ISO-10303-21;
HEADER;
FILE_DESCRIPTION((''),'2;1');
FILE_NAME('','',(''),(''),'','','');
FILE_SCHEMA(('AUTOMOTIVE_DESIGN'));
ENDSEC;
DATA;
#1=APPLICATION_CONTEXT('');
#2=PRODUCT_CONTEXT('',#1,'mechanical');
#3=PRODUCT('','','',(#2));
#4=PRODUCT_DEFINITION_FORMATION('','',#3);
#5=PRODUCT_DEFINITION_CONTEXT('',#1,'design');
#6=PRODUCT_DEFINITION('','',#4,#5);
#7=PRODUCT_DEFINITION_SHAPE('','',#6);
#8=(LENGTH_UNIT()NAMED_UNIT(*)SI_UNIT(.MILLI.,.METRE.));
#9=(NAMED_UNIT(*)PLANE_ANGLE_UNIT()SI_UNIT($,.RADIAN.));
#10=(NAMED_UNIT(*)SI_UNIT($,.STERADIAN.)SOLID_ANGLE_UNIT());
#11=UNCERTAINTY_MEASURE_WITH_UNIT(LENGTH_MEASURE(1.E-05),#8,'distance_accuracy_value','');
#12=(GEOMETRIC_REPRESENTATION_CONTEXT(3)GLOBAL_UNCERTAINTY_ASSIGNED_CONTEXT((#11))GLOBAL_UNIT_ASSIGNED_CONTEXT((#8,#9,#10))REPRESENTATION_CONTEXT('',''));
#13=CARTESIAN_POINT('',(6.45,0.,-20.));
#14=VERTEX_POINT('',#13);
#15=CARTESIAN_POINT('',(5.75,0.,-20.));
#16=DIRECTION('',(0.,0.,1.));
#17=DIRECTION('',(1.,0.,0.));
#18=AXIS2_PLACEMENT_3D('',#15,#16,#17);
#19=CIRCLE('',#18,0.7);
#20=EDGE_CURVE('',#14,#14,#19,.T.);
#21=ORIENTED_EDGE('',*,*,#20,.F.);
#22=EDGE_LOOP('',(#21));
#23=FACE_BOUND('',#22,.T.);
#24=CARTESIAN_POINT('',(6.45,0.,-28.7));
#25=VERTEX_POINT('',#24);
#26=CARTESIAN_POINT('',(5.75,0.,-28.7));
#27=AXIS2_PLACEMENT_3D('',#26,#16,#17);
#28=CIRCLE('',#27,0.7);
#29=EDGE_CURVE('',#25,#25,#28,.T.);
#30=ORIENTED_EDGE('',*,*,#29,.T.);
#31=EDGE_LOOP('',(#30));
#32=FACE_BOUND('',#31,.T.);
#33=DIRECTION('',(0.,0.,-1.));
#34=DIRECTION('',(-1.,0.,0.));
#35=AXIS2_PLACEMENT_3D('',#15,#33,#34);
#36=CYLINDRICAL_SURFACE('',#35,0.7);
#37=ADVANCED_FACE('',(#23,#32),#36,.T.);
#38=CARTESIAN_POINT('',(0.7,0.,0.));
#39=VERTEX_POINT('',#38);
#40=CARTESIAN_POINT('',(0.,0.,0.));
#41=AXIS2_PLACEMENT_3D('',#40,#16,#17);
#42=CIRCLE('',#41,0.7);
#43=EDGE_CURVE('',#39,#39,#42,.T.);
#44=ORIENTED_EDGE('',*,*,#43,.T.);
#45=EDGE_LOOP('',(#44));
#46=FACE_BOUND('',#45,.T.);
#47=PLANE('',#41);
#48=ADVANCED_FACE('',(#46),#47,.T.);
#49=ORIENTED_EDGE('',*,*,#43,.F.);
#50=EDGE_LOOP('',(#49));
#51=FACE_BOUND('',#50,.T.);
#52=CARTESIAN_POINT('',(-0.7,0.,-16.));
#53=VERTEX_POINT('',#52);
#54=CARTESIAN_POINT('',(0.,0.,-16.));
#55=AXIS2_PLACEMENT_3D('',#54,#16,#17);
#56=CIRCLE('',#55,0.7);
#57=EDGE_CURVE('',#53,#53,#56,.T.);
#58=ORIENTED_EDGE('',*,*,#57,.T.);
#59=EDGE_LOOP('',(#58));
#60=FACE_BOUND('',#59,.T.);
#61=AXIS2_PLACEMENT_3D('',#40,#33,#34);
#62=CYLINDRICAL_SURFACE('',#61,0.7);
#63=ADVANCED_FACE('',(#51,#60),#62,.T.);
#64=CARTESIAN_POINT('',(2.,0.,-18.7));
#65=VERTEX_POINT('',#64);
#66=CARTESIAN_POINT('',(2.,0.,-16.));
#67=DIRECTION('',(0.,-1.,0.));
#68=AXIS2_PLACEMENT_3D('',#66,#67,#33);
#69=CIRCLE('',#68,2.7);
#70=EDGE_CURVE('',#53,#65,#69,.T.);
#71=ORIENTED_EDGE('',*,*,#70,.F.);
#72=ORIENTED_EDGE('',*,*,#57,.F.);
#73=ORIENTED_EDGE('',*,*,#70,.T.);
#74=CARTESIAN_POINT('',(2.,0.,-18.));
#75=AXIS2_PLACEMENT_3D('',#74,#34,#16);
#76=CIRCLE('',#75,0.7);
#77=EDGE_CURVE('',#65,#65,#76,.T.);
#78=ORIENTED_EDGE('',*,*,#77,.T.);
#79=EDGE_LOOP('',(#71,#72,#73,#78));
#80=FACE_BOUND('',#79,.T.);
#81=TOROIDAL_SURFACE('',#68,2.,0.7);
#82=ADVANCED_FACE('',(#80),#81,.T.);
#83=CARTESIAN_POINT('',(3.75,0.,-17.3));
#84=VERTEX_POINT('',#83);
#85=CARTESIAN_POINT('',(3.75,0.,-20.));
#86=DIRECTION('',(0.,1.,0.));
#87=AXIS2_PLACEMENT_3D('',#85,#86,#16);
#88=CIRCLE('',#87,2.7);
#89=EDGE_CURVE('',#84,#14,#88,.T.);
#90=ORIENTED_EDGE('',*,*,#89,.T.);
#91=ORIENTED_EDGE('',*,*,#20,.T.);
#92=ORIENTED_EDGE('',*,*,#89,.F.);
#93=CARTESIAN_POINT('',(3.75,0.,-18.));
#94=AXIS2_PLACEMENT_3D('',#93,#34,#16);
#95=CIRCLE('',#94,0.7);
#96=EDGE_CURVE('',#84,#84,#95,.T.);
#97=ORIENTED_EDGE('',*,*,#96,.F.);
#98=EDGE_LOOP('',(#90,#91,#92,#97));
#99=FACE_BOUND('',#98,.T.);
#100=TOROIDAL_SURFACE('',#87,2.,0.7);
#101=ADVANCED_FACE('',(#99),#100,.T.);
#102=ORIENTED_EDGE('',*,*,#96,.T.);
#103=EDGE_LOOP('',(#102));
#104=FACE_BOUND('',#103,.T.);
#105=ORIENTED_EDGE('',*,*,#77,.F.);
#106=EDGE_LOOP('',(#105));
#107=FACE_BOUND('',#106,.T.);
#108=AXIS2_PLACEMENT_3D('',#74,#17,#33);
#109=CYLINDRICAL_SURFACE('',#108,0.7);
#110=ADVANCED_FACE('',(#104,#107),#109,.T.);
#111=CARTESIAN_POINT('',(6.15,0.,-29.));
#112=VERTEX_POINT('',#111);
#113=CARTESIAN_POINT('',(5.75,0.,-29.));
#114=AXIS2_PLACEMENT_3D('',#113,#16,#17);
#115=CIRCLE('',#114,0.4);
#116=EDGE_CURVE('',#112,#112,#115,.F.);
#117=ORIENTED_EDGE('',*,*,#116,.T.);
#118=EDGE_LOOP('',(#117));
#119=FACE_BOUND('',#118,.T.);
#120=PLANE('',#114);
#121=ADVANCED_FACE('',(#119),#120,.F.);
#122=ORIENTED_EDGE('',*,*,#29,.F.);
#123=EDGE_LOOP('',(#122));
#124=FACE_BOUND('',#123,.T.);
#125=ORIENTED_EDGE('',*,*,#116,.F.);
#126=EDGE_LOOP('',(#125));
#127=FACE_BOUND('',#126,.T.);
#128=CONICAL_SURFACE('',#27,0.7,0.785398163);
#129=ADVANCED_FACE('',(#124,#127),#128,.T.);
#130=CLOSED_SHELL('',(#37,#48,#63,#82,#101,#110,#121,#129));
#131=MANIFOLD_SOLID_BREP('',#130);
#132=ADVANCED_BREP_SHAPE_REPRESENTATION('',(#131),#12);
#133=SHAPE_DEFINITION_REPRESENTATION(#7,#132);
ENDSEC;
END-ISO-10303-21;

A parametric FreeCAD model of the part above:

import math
import FreeCAD as App
import Part
import Sketcher

V = App.Vector


def edges_at(feature, points):
    """Names of the edges that pass closest to the given points."""
    edges = feature.Shape.Edges
    near = lambda p: min(range(len(edges)), key=lambda i: edges[i].distToShape(Part.Vertex(*p))[0])
    return sorted({f"Edge{near(p) + 1}" for p in points})

doc = App.newDocument("Part")
body = doc.addObject("PartDesign::Body", "Body")

# Sketch on XY plane
sketch1 = body.newObject("Sketcher::SketchObject", "Sketch")
sketch1.AttachmentSupport = (doc.getObject("XY_Plane"), [""])
sketch1.MapMode = "FlatFace"
sketch1.addGeometry(Part.Circle(V(0, 0, 0), V(0, 0, 1), 0.7), False)
sketch1.addConstraint([
    Sketcher.Constraint("Coincident", 0, 3, -1, 1),
    Sketcher.Constraint("Diameter", 0, 1.4),
])

# Sketch on XZ plane
sketch2 = body.newObject("Sketcher::SketchObject", "Sketch001")
sketch2.AttachmentSupport = (doc.getObject("XZ_Plane"), [""])
sketch2.MapMode = "FlatFace"
sketch2.addGeometry([
    Part.LineSegment(V(0, 0, 0), V(0, -16, 0)),  # 0
    Part.ArcOfCircle(Part.Circle(V(2, -16, 0), V(0, 0, 1), 2), math.radians(-180), math.radians(-90)),  # 1
    Part.LineSegment(V(2, -18, 0), V(3.8, -18, 0)),  # 2
    Part.ArcOfCircle(Part.Circle(V(3.7, -20, 0), V(0, 0, 1), 2), math.radians(0), math.radians(90)),  # 3
    Part.LineSegment(V(5.8, -20, 0), V(5.8, -29, 0)),  # 4
], False)
sketch2.addConstraint([
    Sketcher.Constraint("Tangent", 0, 2, 1, 1),
    Sketcher.Constraint("Tangent", 1, 2, 2, 1),
    Sketcher.Constraint("Tangent", 2, 2, 3, 2),
    Sketcher.Constraint("Tangent", 3, 1, 4, 1),
    Sketcher.Constraint("Vertical", 0),
    Sketcher.Constraint("Horizontal", 2),
    Sketcher.Constraint("Vertical", 4),
    Sketcher.Constraint("Coincident", 0, 1, -1, 1),
    Sketcher.Constraint("Equal", 1, 3),
    Sketcher.Constraint("Radius", 1, 2.0),
    Sketcher.Constraint("DistanceY", 0, 2, 0, 1, 16.0),
    Sketcher.Constraint("DistanceY", 4, 2, 4, 1, 9.0),
    Sketcher.Constraint("DistanceX", 2, 1, 2, 2, 1.75),
])
doc.recompute()

additivepipe = body.newObject("PartDesign::AdditivePipe", "AdditivePipe")
additivepipe.Profile = sketch1
additivepipe.Spine = (sketch2, ["Edge1", "Edge2", "Edge3", "Edge4", "Edge5"])
doc.recompute()

chamfer = body.newObject("PartDesign::Chamfer", "Chamfer")
chamfer.Base = (additivepipe, edges_at(additivepipe, [(5.05, 0, -29)]))
chamfer.Size = 0.3

doc.recompute()
